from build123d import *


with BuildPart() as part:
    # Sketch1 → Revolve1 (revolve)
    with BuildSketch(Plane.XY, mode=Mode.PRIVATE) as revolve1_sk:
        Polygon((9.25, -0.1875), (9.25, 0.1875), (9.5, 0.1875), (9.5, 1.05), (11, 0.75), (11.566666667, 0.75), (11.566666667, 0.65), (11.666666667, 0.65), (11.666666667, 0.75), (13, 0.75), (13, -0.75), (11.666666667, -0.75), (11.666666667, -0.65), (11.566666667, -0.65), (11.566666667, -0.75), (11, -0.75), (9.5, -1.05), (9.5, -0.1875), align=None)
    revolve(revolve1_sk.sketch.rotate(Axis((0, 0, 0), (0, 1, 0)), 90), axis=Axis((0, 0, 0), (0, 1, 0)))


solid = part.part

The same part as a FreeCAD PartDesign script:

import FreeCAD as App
import Part
import Sketcher
from FreeCAD import Vector
Q = App.Units.Quantity


def add_polygon(sketch, points):
    """Adds a closed chain of lines whose ends are joined by coincident constraints."""
    first, n = sketch.GeometryCount, len(points)
    for a, b in zip(points, points[1:] + points[:1]):
        sketch.addGeometry(Part.LineSegment(App.Vector(*a, 0), App.Vector(*b, 0)), False)
    for i in range(n):
        sketch.addConstraint(Sketcher.Constraint("Coincident", first + i, 2, first + (i + 1) % n, 1))

doc = App.newDocument("Part")
body = doc.addObject("PartDesign::Body", "Body")

sketch1 = doc.addObject("Sketcher::SketchObject", "Sketch")
body.addObject(sketch1)
sketch1.AttachmentSupport = (doc.XY_Plane, [""])
sketch1.MapMode = "FlatFace"
add_polygon(sketch1, [(9.25, 0.19), (9.25, -0.19), (9.5, -0.19), (9.5, -1.05), (11, -0.75), (11.57, -0.75), (11.57, -0.65), (11.67, -0.65), (11.67, -0.75), (13, -0.75), (13, 0.75), (11.67, 0.75), (11.67, 0.65), (11.57, 0.65), (11.57, 0.75), (11, 0.75), (9.5, 1.05), (9.5, 0.19)])
sketch1.addConstraint([
    Sketcher.Constraint("Vertical", 0),
    Sketcher.Constraint("Horizontal", 1),
    Sketcher.Constraint("Vertical", 2),
    Sketcher.Constraint("Horizontal", 4),
    Sketcher.Constraint("Vertical", 5),
    Sketcher.Constraint("Horizontal", 6),
    Sketcher.Constraint("Vertical", 7),
    Sketcher.Constraint("Horizontal", 8),
    Sketcher.Constraint("Vertical", 9),
    Sketcher.Constraint("Horizontal", 10),
    Sketcher.Constraint("Vertical", 11),
    Sketcher.Constraint("Horizontal", 12),
    Sketcher.Constraint("Vertical", 13),
    Sketcher.Constraint("Horizontal", 14),
    Sketcher.Constraint("Vertical", 16),
    Sketcher.Constraint("Horizontal", 17),
    Sketcher.Constraint("Symmetric", 7, 2, 10, 2, -1),
    Sketcher.Constraint("Symmetric", 5, 2, 12, 2, -1),
    Sketcher.Constraint("Symmetric", 3, 2, 14, 2, -1),
    Sketcher.Constraint("Symmetric", 2, 2, 15, 2, -1),
    Sketcher.Constraint("Horizontal", 4, 2, 7, 2),
    Sketcher.Constraint("Equal", 12, 5),
    Sketcher.Constraint("Equal", 2, 16),
    Sketcher.Constraint("DistanceX", 6, 1, 6, 2, Q("0.1 mm")),
    Sketcher.Constraint("DistanceY", 9, 1, 9, 2, Q("1.5 mm")),
    Sketcher.Constraint("DistanceX", -1, 1, 3, 2, Q("11 mm")),
    Sketcher.Constraint("DistanceX", -1, 1, 8, 2, Q("13 mm")),
    Sketcher.Constraint("DistanceX", 1, 1, 1, 2, Q("0.25 mm")),
    Sketcher.Constraint("DistanceX", -1, 1, 1, 2, Q("9.5 mm")),
    Sketcher.Constraint("DistanceY", 2, 2, 3, 2, Q("0.3 mm")),
    Sketcher.Constraint("DistanceY", 0, 2, 0, 1, Q("0.375 mm")),
    Sketcher.Constraint("DistanceX", 4, 1, 4, 2, Q("0.566667 mm")),
])
revolution = doc.addObject("PartDesign::Revolution", "Revolution")
body.addObject(revolution)
revolution.Profile = sketch1
revolution.ReferenceAxis = (sketch1, ["V_Axis"])
revolution.Angle = 360

doc.recompute()
